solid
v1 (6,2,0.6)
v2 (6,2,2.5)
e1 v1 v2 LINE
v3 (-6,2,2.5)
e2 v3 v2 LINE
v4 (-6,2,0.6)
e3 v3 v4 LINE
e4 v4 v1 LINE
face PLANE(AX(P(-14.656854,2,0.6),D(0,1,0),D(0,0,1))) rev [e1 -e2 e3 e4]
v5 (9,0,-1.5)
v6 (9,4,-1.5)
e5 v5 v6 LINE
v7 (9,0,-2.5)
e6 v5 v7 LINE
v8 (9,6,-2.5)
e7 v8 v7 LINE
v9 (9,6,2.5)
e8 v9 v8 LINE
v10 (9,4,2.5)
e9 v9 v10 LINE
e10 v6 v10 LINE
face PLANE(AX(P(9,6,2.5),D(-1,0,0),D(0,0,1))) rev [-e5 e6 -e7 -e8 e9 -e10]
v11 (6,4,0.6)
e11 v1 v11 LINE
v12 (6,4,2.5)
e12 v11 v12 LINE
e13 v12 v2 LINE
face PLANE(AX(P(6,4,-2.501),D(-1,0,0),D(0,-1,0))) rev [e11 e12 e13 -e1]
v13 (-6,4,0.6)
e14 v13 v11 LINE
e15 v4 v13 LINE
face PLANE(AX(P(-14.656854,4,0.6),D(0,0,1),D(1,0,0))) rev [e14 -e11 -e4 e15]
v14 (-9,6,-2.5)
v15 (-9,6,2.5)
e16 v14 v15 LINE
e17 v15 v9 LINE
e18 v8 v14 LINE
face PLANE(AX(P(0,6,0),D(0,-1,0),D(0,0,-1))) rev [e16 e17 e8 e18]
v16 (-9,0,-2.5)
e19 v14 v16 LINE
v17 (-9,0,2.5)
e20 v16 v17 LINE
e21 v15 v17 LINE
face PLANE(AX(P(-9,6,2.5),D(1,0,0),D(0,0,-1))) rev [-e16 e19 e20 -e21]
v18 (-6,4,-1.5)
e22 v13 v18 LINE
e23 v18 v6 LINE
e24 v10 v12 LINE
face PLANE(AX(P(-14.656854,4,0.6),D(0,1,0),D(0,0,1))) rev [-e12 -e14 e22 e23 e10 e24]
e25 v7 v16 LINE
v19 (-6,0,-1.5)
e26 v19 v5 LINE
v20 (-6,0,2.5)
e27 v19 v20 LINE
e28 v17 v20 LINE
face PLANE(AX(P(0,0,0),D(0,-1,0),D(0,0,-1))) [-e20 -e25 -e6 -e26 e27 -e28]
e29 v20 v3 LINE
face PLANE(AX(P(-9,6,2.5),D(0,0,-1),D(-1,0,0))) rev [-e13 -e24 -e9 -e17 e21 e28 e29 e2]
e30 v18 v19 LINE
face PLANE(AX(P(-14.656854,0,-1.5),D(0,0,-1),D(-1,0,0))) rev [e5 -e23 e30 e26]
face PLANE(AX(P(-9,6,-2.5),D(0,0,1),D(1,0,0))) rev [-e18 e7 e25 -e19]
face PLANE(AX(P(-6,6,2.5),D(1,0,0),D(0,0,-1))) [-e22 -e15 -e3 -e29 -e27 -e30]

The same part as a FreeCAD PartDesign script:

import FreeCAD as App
import Part
import Sketcher

doc = App.newDocument("Part")
body = doc.addObject("PartDesign::Body", "Body")

# Sketch on XZ plane
sketch1 = body.newObject("Sketcher::SketchObject", "Sketch")
sketch1.AttachmentSupport = (doc.getObject("XZ_Plane"), [""])
sketch1.MapMode = "FlatFace"
sketch1.addGeometry([
    Part.LineSegment(App.Vector(-9, -2, 0), App.Vector(-9, 2, 0)),
    Part.LineSegment(App.Vector(-9, 2, 0), App.Vector(9, 2, 0)),
    Part.LineSegment(App.Vector(9, 2, 0), App.Vector(9, -2, 0)),
    Part.LineSegment(App.Vector(9, -2, 0), App.Vector(-9, -2, 0)),
], False)
sketch1.addConstraint([
    Sketcher.Constraint("Coincident", 0, 2, 1, 1),
    Sketcher.Constraint("Coincident", 1, 2, 2, 1),
    Sketcher.Constraint("Coincident", 2, 2, 3, 1),
    Sketcher.Constraint("Coincident", 3, 2, 0, 1),
    Sketcher.Constraint("Vertical", 0),
    Sketcher.Constraint("Horizontal", 1),
    Sketcher.Constraint("Vertical", 2),
    Sketcher.Constraint("Horizontal", 3),
    Sketcher.Constraint("Symmetric", 0, 2, 2, 2, -1, 1),
    Sketcher.Constraint("DistanceX", 1, 1, 1, 2, 18.0),
    Sketcher.Constraint("DistanceY", 0, 1, 0, 2, 5.0),
])
pad1 = body.newObject("PartDesign::Pad", "Pad")
pad1.Profile = sketch1
pad1.Length = 6
pad1.Reversed = True

# Sketch on YZ plane
sketch2 = body.newObject("Sketcher::SketchObject", "Sketch001")
sketch2.AttachmentSupport = (doc.getObject("YZ_Plane"), [""])
sketch2.MapMode = "FlatFace"
sketch2.AttachmentOffset = App.Placement(App.Vector(0, 0, 9), App.Rotation())
sketch2.addGeometry([
    Part.LineSegment(App.Vector(0, 2.5, 0), App.Vector(0, -1.5, 0)),  # 0
    Part.LineSegment(App.Vector(0, -1.5, 0), App.Vector(4, -1.5, 0)),  # 1
    Part.LineSegment(App.Vector(4, -1.5, 0), App.Vector(4, 0.6, 0)),  # 2
    Part.LineSegment(App.Vector(4, 0.6, 0), App.Vector(2, 0.6, 0)),  # 3
    Part.LineSegment(App.Vector(2, 0.6, 0), App.Vector(2, 2.5, 0)),  # 4
    Part.LineSegment(App.Vector(2, 2.5, 0), App.Vector(0, 2.5, 0)),  # 5
], False)
sketch2.addConstraint([
    Sketcher.Constraint("Coincident", 0, 2, 1, 1),
    Sketcher.Constraint("Coincident", 1, 2, 2, 1),
    Sketcher.Constraint("Coincident", 2, 2, 3, 1),
    Sketcher.Constraint("Coincident", 3, 2, 4, 1),
    Sketcher.Constraint("Coincident", 4, 2, 5, 1),
    Sketcher.Constraint("Coincident", 5, 2, 0, 1),
    Sketcher.Constraint("Vertical", 0),
    Sketcher.Constraint("Horizontal", 1),
    Sketcher.Constraint("Vertical", 2),
    Sketcher.Constraint("Horizontal", 3),
    Sketcher.Constraint("Vertical", 4),
    Sketcher.Constraint("Horizontal", 5),
    Sketcher.Constraint("PointOnObject", 0, 2, -2),
    Sketcher.Constraint("Equal", 3, 5),
    Sketcher.Constraint("Equal", 1, 0),
    Sketcher.Constraint("DistanceX", 1, 1, 1, 2, 4.0),
    Sketcher.Constraint("DistanceY", 2, 1, 2, 2, 2.1),
    Sketcher.Constraint("DistanceY", 0, 2, -1, 1, 1.5),
])
pocket1 = body.newObject("PartDesign::Pocket", "Pocket")
pocket1.Profile = sketch2
pocket1.Length = 15

# Sketch on XY plane
sketch3 = body.newObject("Sketcher::SketchObject", "Sketch002")
sketch3.AttachmentSupport = (doc.getObject("XY_Plane"), [""])
sketch3.MapMode = "FlatFace"
sketch3.AttachmentOffset = App.Placement(App.Vector(0, 0, 2.5), App.Rotation())
sketch3.addGeometry([
    Part.LineSegment(App.Vector(6, 4, 0), App.Vector(6, 2, 0)),
    Part.LineSegment(App.Vector(6, 2, 0), App.Vector(9, 2, 0)),
    Part.LineSegment(App.Vector(9, 2, 0), App.Vector(9, 4, 0)),
    Part.LineSegment(App.Vector(9, 4, 0), App.Vector(6, 4, 0)),
], False)
sketch3.addConstraint([
    Sketcher.Constraint("Coincident", 0, 2, 1, 1),
    Sketcher.Constraint("Coincident", 1, 2, 2, 1),
    Sketcher.Constraint("Coincident", 2, 2, 3, 1),
    Sketcher.Constraint("Coincident", 3, 2, 0, 1),
    Sketcher.Constraint("Vertical", 0),
    Sketcher.Constraint("Horizontal", 1),
    Sketcher.Constraint("Vertical", 2),
    Sketcher.Constraint("Horizontal", 3),
    Sketcher.Constraint("DistanceX", 1, 1, 1, 2, 3.0),
    Sketcher.Constraint("DistanceY", 0, 2, 0, 1, 2.0),
    Sketcher.Constraint("DistanceX", -1, 1, 0, 2, 6.0),
    Sketcher.Constraint("DistanceY", -1, 1, 0, 2, 2.0),
])
pocket2 = body.newObject("PartDesign::Pocket", "Pocket001")
pocket2.Profile = sketch3
pocket2.Type = "UpToFirst"

doc.recompute()
